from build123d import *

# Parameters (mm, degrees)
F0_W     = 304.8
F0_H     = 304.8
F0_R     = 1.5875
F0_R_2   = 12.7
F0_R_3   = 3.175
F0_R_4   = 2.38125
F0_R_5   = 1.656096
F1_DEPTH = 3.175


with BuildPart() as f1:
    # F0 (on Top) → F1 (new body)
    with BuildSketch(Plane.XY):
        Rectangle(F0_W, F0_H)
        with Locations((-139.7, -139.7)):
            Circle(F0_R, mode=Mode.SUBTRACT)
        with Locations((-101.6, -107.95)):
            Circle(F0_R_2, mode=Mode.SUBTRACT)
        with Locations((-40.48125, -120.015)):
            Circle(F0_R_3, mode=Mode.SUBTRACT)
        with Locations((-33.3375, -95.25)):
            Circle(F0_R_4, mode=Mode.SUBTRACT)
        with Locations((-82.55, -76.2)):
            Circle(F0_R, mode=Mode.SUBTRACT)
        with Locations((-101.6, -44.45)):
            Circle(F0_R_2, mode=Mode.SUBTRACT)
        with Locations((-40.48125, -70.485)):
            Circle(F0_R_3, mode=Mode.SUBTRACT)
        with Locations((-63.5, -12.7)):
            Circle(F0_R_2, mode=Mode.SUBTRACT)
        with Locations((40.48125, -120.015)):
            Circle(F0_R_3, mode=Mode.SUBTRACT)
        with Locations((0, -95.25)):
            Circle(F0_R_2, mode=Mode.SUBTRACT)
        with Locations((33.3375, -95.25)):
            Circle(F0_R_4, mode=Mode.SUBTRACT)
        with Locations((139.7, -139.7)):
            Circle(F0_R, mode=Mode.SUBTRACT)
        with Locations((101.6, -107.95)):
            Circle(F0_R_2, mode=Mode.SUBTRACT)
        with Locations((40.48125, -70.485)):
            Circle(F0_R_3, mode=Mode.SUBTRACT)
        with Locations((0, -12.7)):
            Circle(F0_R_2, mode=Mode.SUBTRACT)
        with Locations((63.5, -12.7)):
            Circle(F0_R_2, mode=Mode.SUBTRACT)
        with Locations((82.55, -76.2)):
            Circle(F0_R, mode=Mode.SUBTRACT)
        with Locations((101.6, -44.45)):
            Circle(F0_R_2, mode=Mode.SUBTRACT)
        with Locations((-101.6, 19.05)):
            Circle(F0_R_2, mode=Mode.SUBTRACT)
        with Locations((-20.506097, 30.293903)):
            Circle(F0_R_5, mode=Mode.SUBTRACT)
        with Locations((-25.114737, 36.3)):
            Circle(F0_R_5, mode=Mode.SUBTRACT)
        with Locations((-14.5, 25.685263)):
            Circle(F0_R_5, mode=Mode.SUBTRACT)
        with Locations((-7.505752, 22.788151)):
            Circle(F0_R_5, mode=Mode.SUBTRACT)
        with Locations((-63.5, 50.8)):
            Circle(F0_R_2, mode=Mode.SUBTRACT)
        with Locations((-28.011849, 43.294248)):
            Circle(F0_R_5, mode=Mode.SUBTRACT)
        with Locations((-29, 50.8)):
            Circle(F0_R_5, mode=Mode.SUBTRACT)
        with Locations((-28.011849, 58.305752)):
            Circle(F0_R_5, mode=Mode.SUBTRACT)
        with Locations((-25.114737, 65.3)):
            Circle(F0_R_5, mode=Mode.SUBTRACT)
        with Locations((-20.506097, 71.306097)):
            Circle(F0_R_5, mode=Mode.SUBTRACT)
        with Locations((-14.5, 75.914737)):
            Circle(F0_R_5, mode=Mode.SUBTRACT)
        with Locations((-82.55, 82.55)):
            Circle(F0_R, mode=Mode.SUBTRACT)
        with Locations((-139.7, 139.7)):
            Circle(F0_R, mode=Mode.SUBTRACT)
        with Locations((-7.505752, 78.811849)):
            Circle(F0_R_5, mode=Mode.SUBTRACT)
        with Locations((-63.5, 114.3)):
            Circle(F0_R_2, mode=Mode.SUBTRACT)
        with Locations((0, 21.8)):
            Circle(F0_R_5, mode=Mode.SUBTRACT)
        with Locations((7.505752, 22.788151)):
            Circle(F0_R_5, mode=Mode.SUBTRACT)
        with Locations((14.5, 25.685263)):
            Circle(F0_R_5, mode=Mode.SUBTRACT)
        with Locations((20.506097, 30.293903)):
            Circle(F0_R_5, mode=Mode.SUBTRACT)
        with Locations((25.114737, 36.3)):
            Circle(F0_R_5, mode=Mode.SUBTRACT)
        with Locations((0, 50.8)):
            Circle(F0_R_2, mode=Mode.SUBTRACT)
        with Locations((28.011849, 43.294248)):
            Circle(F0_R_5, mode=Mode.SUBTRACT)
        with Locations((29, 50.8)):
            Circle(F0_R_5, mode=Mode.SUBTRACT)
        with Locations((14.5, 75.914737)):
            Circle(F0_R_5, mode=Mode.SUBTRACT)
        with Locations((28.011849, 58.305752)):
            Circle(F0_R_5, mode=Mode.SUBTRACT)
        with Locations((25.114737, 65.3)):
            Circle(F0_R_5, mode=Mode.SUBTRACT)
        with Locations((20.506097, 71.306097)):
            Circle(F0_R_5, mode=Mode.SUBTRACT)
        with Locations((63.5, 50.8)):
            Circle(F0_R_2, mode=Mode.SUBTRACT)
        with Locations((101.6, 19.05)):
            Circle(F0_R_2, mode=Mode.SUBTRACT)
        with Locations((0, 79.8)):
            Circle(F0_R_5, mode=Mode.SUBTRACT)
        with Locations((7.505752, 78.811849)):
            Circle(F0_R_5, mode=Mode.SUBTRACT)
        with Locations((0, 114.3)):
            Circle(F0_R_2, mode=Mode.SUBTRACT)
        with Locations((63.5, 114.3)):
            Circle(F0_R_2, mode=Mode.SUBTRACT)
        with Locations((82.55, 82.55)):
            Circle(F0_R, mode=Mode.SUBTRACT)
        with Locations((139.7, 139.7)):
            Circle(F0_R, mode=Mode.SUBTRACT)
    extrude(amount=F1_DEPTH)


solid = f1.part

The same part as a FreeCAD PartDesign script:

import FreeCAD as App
import Part
import Sketcher
Q = App.Units.Quantity

doc = App.newDocument("Part")
body = doc.addObject("PartDesign::Body", "Body")

# Sketch on XY plane
sketch1 = body.newObject("Sketcher::SketchObject", "Sketch")
sketch1.AttachmentSupport = (doc.getObject("XY_Plane"), [""])
sketch1.MapMode = "FlatFace"
sketch1.addGeometry([
    Part.LineSegment(App.Vector(-152.4, 152.4, 0), App.Vector(-152.4, -152.4, 0)),  # 0
    Part.LineSegment(App.Vector(-152.4, -152.4, 0), App.Vector(152.4, -152.4, 0)),  # 1
    Part.LineSegment(App.Vector(152.4, -152.4, 0), App.Vector(152.4, 152.4, 0)),  # 2
    Part.LineSegment(App.Vector(152.4, 152.4, 0), App.Vector(-152.4, 152.4, 0)),  # 3
    Part.Circle(App.Vector(-139.7, -139.7, 0), App.Vector(0, 0, 1), 1.6),  # 4
    Part.Circle(App.Vector(-101.6, -108, 0), App.Vector(0, 0, 1), 12.7),  # 5
    Part.Circle(App.Vector(-82.5, -76.2, 0), App.Vector(0, 0, 1), 1.6),  # 6
    Part.Circle(App.Vector(-40.5, -120, 0), App.Vector(0, 0, 1), 3.2),  # 7
    Part.Circle(App.Vector(-33.3, -95.2, 0), App.Vector(0, 0, 1), 2.4),  # 8
    Part.Circle(App.Vector(-101.6, -44.5, 0), App.Vector(0, 0, 1), 12.7),  # 9
    Part.Circle(App.Vector(-40.5, -70.5, 0), App.Vector(0, 0, 1), 3.2),  # 10
    Part.Circle(App.Vector(-63.5, -12.7, 0), App.Vector(0, 0, 1), 12.7),  # 11
    Part.Circle(App.Vector(40.5, -120, 0), App.Vector(0, 0, 1), 3.2),  # 12
    Part.Circle(App.Vector(0, -95.2, 0), App.Vector(0, 0, 1), 12.7),  # 13
    Part.Circle(App.Vector(33.3, -95.2, 0), App.Vector(0, 0, 1), 2.4),  # 14
    Part.Circle(App.Vector(101.6, -108, 0), App.Vector(0, 0, 1), 12.7),  # 15
    Part.Circle(App.Vector(139.7, -139.7, 0), App.Vector(0, 0, 1), 1.6),  # 16
    Part.Circle(App.Vector(82.5, -76.2, 0), App.Vector(0, 0, 1), 1.6),  # 17
    Part.Circle(App.Vector(40.5, -70.5, 0), App.Vector(0, 0, 1), 3.2),  # 18
    Part.Circle(App.Vector(0, -12.7, 0), App.Vector(0, 0, 1), 12.7),  # 19
    Part.Circle(App.Vector(63.5, -12.7, 0), App.Vector(0, 0, 1), 12.7),  # 20
    Part.Circle(App.Vector(101.6, -44.5, 0), App.Vector(0, 0, 1), 12.7),  # 21
    Part.Circle(App.Vector(-101.6, 19.1, 0), App.Vector(0, 0, 1), 12.7),  # 22
    Part.Circle(App.Vector(-20.5, 30.3, 0), App.Vector(0, 0, 1), 1.7),  # 23
    Part.Circle(App.Vector(-14.5, 25.7, 0), App.Vector(0, 0, 1), 1.7),  # 24
    Part.Circle(App.Vector(-7.5, 22.8, 0), App.Vector(0, 0, 1), 1.7),  # 25
    Part.Circle(App.Vector(-63.5, 50.8, 0), App.Vector(0, 0, 1), 12.7),  # 26
    Part.Circle(App.Vector(-28, 43.3, 0), App.Vector(0, 0, 1), 1.7),  # 27
    Part.Circle(App.Vector(-25.1, 36.3, 0), App.Vector(0, 0, 1), 1.7),  # 28
    Part.Circle(App.Vector(-29, 50.8, 0), App.Vector(0, 0, 1), 1.7),  # 29
    Part.Circle(App.Vector(-28, 58.3, 0), App.Vector(0, 0, 1), 1.7),  # 30
    Part.Circle(App.Vector(-25.1, 65.3, 0), App.Vector(0, 0, 1), 1.7),  # 31
    Part.Circle(App.Vector(-82.5, 82.5, 0), App.Vector(0, 0, 1), 1.6),  # 32
    Part.Circle(App.Vector(-139.7, 139.7, 0), App.Vector(0, 0, 1), 1.6),  # 33
    Part.Circle(App.Vector(-20.5, 71.3, 0), App.Vector(0, 0, 1), 1.7),  # 34
    Part.Circle(App.Vector(-14.5, 75.9, 0), App.Vector(0, 0, 1), 1.7),  # 35
    Part.Circle(App.Vector(-7.5, 78.8, 0), App.Vector(0, 0, 1), 1.7),  # 36
    Part.Circle(App.Vector(-63.5, 114.3, 0), App.Vector(0, 0, 1), 12.7),  # 37
    Part.Circle(App.Vector(0, 21.8, 0), App.Vector(0, 0, 1), 1.7),  # 38
    Part.Circle(App.Vector(7.5, 22.8, 0), App.Vector(0, 0, 1), 1.7),  # 39
    Part.Circle(App.Vector(14.5, 25.7, 0), App.Vector(0, 0, 1), 1.7),  # 40
    Part.Circle(App.Vector(20.5, 30.3, 0), App.Vector(0, 0, 1), 1.7),  # 41
    Part.Circle(App.Vector(0, 50.8, 0), App.Vector(0, 0, 1), 12.7),  # 42
    Part.Circle(App.Vector(25.1, 36.3, 0), App.Vector(0, 0, 1), 1.7),  # 43
    Part.Circle(App.Vector(28, 43.3, 0), App.Vector(0, 0, 1), 1.7),  # 44
    Part.Circle(App.Vector(29, 50.8, 0), App.Vector(0, 0, 1), 1.7),  # 45
    Part.Circle(App.Vector(28, 58.3, 0), App.Vector(0, 0, 1), 1.7),  # 46
    Part.Circle(App.Vector(25.1, 65.3, 0), App.Vector(0, 0, 1), 1.7),  # 47
    Part.Circle(App.Vector(63.5, 50.8, 0), App.Vector(0, 0, 1), 12.7),  # 48
    Part.Circle(App.Vector(101.6, 19.1, 0), App.Vector(0, 0, 1), 12.7),  # 49
    Part.Circle(App.Vector(7.5, 78.8, 0), App.Vector(0, 0, 1), 1.7),  # 50
    Part.Circle(App.Vector(14.5, 75.9, 0), App.Vector(0, 0, 1), 1.7),  # 51
    Part.Circle(App.Vector(0, 79.8, 0), App.Vector(0, 0, 1), 1.7),  # 52
    Part.Circle(App.Vector(20.5, 71.3, 0), App.Vector(0, 0, 1), 1.7),  # 53
    Part.Circle(App.Vector(0, 114.3, 0), App.Vector(0, 0, 1), 12.7),  # 54
    Part.Circle(App.Vector(63.5, 114.3, 0), App.Vector(0, 0, 1), 12.7),  # 55
    Part.Circle(App.Vector(82.5, 82.5, 0), App.Vector(0, 0, 1), 1.6),  # 56
    Part.Circle(App.Vector(139.7, 139.7, 0), App.Vector(0, 0, 1), 1.6),  # 57
], False)
sketch1.addConstraint([
    Sketcher.Constraint("Coincident", 0, 2, 1, 1),
    Sketcher.Constraint("Coincident", 1, 2, 2, 1),
    Sketcher.Constraint("Coincident", 2, 2, 3, 1),
    Sketcher.Constraint("Coincident", 3, 2, 0, 1),
    Sketcher.Constraint("Vertical", 0),
    Sketcher.Constraint("Horizontal", 1),
    Sketcher.Constraint("Vertical", 2),
    Sketcher.Constraint("Horizontal", 3),
    Sketcher.Constraint("Equal", 4, 6),
    Sketcher.Constraint("Equal", 5, 9),
    Sketcher.Constraint("Equal", 7, 10),
    Sketcher.Constraint("Equal", 9, 11),
    Sketcher.Constraint("Equal", 10, 12),
    Sketcher.Constraint("Equal", 11, 13),
    Sketcher.Constraint("Equal", 8, 14),
    Sketcher.Constraint("Equal", 13, 15),
    Sketcher.Constraint("Equal", 6, 16),
    Sketcher.Constraint("Equal", 16, 17),
    Sketcher.Constraint("Equal", 12, 18),
    Sketcher.Constraint("Equal", 15, 19),
    Sketcher.Constraint("Equal", 19, 20),
    Sketcher.Constraint("Equal", 20, 21),
    Sketcher.Constraint("Equal", 21, 22),
    Sketcher.Constraint("Equal", 23, 24),
    Sketcher.Constraint("Equal", 24, 25),
    Sketcher.Constraint("Equal", 22, 26),
    Sketcher.Constraint("Equal", 25, 27),
    Sketcher.Constraint("Equal", 27, 28),
    Sketcher.Constraint("Equal", 28, 29),
    Sketcher.Constraint("Equal", 29, 30),
    Sketcher.Constraint("Equal", 30, 31),
    Sketcher.Constraint("Equal", 17, 32),
    Sketcher.Constraint("Equal", 32, 33),
    Sketcher.Constraint("Equal", 31, 34),
    Sketcher.Constraint("Equal", 34, 35),
    Sketcher.Constraint("Equal", 35, 36),
    Sketcher.Constraint("Equal", 26, 37),
    Sketcher.Constraint("Equal", 36, 38),
    Sketcher.Constraint("Equal", 38, 39),
    Sketcher.Constraint("Equal", 39, 40),
    Sketcher.Constraint("Equal", 40, 41),
    Sketcher.Constraint("Equal", 37, 42),
    Sketcher.Constraint("Equal", 41, 43),
    Sketcher.Constraint("Equal", 43, 44),
    Sketcher.Constraint("Equal", 44, 45),
    Sketcher.Constraint("Equal", 45, 46),
    Sketcher.Constraint("Equal", 46, 47),
    Sketcher.Constraint("Equal", 42, 48),
    Sketcher.Constraint("Equal", 48, 49),
    Sketcher.Constraint("Equal", 47, 50),
    Sketcher.Constraint("Equal", 50, 51),
    Sketcher.Constraint("Equal", 51, 52),
    Sketcher.Constraint("Equal", 52, 53),
    Sketcher.Constraint("Equal", 49, 54),
    Sketcher.Constraint("Equal", 54, 55),
    Sketcher.Constraint("Equal", 33, 56),
    Sketcher.Constraint("Equal", 56, 57),
    Sketcher.Constraint("Symmetric", 16, 3, 33, 3, -1, 1),
    Sketcher.Constraint("Symmetric", 4, 3, 57, 3, -1, 1),
    Sketcher.Constraint("Symmetric", 0, 2, 2, 2, -1, 1),
    Sketcher.Constraint("Symmetric", 7, 3, 12, 3, -2),
    Sketcher.Constraint("Symmetric", 8, 3, 14, 3, -2),
    Sketcher.Constraint("Symmetric", 5, 3, 15, 3, -2),
    Sketcher.Constraint("Symmetric", 4, 3, 16, 3, -2),
    Sketcher.Constraint("Symmetric", 6, 3, 17, 3, -2),
    Sketcher.Constraint("Symmetric", 10, 3, 18, 3, -2),
    Sketcher.Constraint("Symmetric", 11, 3, 20, 3, -2),
    Sketcher.Constraint("Symmetric", 9, 3, 21, 3, -2),
    Sketcher.Constraint("Symmetric", 25, 3, 39, 3, -2),
    Sketcher.Constraint("Symmetric", 24, 3, 40, 3, -2),
    Sketcher.Constraint("Symmetric", 23, 3, 41, 3, -2),
    Sketcher.Constraint("Symmetric", 28, 3, 43, 3, -2),
    Sketcher.Constraint("Symmetric", 27, 3, 44, 3, -2),
    Sketcher.Constraint("Symmetric", 29, 3, 45, 3, -2),
    Sketcher.Constraint("Symmetric", 30, 3, 46, 3, -2),
    Sketcher.Constraint("Symmetric", 31, 3, 47, 3, -2),
    Sketcher.Constraint("Symmetric", 26, 3, 48, 3, -2),
    Sketcher.Constraint("Symmetric", 22, 3, 49, 3, -2),
    Sketcher.Constraint("Symmetric", 36, 3, 50, 3, -2),
    Sketcher.Constraint("Symmetric", 35, 3, 51, 3, -2),
    Sketcher.Constraint("Symmetric", 34, 3, 53, 3, -2),
    Sketcher.Constraint("Symmetric", 37, 3, 55, 3, -2),
    Sketcher.Constraint("Symmetric", 32, 3, 56, 3, -2),
    Sketcher.Constraint("PointOnObject", 13, 3, -2),
    Sketcher.Constraint("PointOnObject", 19, 3, -2),
    Sketcher.Constraint("PointOnObject", 38, 3, -2),
    Sketcher.Constraint("PointOnObject", 42, 3, -2),
    Sketcher.Constraint("PointOnObject", 52, 3, -2),
    Sketcher.Constraint("PointOnObject", 54, 3, -2),
    Sketcher.Constraint("Horizontal", 8, 3, 13, 3),
    Sketcher.Constraint("Horizontal", 11, 3, 19, 3),
    Sketcher.Constraint("Horizontal", 26, 3, 29, 3),
    Sketcher.Constraint("Horizontal", 29, 3, 42, 3),
    Sketcher.Constraint("Horizontal", 37, 3, 54, 3),
    Sketcher.Constraint("Vertical", 5, 3, 9, 3),
    Sketcher.Constraint("Vertical", 7, 3, 10, 3),
    Sketcher.Constraint("Vertical", 9, 3, 22, 3),
    Sketcher.Constraint("Vertical", 11, 3, 26, 3),
    Sketcher.Constraint("Vertical", 27, 3, 30, 3),
    Sketcher.Constraint("Vertical", 28, 3, 31, 3),
    Sketcher.Constraint("Vertical", 6, 3, 32, 3),
    Sketcher.Constraint("Vertical", 23, 3, 34, 3),
    Sketcher.Constraint("Vertical", 24, 3, 35, 3),
    Sketcher.Constraint("Vertical", 25, 3, 36, 3),
    Sketcher.Constraint("Vertical", 26, 3, 37, 3),
    Sketcher.Constraint("Equal", 3, 0),
    Sketcher.Constraint("Diameter", 5, Q("1 in")),
    Sketcher.Constraint("Diameter", 7, Q("0.25 in")),
    Sketcher.Constraint("DistanceX", 1, 1, 1, 2, Q("12 in")),
    Sketcher.Constraint("Diameter", 4, Q("0.125 in")),
    Sketcher.Constraint("Diameter", 8, Q("0.1875 in")),
    Sketcher.Constraint("DistanceX", 5, 3, -1, 1, Q("4 in")),
    Sketcher.Constraint("DistanceY", 6, 3, -1, 1, Q("3 in")),
    Sketcher.Constraint("DistanceY", -1, 1, 26, 3, Q("2 in")),
    Sketcher.Constraint("DistanceY", 8, 3, 9, 3, Q("2 in")),
    Sketcher.Constraint("DistanceX", 33, 3, 26, 3, Q("3 in")),
    Sketcher.Constraint("DistanceY", 55, 3, 57, 3, Q("1 in")),
    Sketcher.Constraint("DistanceX", 4, 3, -1, 1, Q("5.5 in")),
    Sketcher.Constraint("DistanceY", 4, 3, -1, 1, Q("5.5 in")),
    Sketcher.Constraint("DistanceY", 11, 3, -1, 1, Q("0.5 in")),
    Sketcher.Constraint("DistanceY", 5, 3, 8, 3, Q("0.5 in")),
    Sketcher.Constraint("DistanceY", 9, 3, 22, 3, Q("2.5 in")),
    Sketcher.Constraint("DistanceY", 22, 3, 32, 3, Q("2.5 in")),
    Sketcher.Constraint("DistanceY", 5, 3, -1, 1, Q("4.25 in")),
    Sketcher.Constraint("DistanceX", 6, 3, -1, 1, Q("3.25 in")),
    Sketcher.Constraint("DistanceY", 7, 3, 10, 3, Q("1.95 in")),
    Sketcher.Constraint("Diameter", 23, 3.312192),
    Sketcher.Constraint("DistanceX", 7, 3, -1, 1, Q("1.59375 in")),
    Sketcher.Constraint("DistanceY", 7, 3, -1, 1, Q("4.725 in")),
    Sketcher.Constraint("DistanceX", 8, 3, -1, 1, Q("1.3125 in")),
    Sketcher.Constraint("DistanceX", 24, 3, -1, 1, 14.5),
    Sketcher.Constraint("DistanceY", -1, 1, 28, 3, 36.3),
    Sketcher.Constraint("DistanceX", 29, 3, -1, 1, 29.0),
    Sketcher.Constraint("DistanceY", -1, 1, 31, 3, 65.3),
    Sketcher.Constraint("DistanceY", -1, 1, 38, 3, 21.8),
    Sketcher.Constraint("DistanceY", -1, 1, 52, 3, 79.8),
    Sketcher.Constraint("DistanceY", -1, 1, 25, 3, 22.788151),
    Sketcher.Constraint("DistanceX", 27, 3, -1, 1, 28.011849),
    Sketcher.Constraint("DistanceY", -1, 1, 27, 3, 43.294248),
    Sketcher.Constraint("DistanceY", -1, 1, 30, 3, 58.305752),
    Sketcher.Constraint("DistanceY", -1, 1, 36, 3, 78.811849),
    Sketcher.Constraint("DistanceY", 24, 3, 23, 3, 4.60864),
    Sketcher.Constraint("DistanceY", 25, 3, 24, 3, 2.897112),
    Sketcher.Constraint("DistanceX", 25, 3, 20, 3, 71.005752),
    Sketcher.Constraint("DistanceX", 27, 3, 28, 3, 2.897112),
    Sketcher.Constraint("DistanceX", 28, 3, 23, 3, 4.60864),
    Sketcher.Constraint("DistanceY", 27, 3, 34, 3, 28.011849),
    Sketcher.Constraint("DistanceY", 34, 3, 35, 3, 4.60864),
])
pad1 = body.newObject("PartDesign::Pad", "Pad")
pad1.Profile = sketch1
pad1.Length = Q("0.125 in")

doc.recompute()
